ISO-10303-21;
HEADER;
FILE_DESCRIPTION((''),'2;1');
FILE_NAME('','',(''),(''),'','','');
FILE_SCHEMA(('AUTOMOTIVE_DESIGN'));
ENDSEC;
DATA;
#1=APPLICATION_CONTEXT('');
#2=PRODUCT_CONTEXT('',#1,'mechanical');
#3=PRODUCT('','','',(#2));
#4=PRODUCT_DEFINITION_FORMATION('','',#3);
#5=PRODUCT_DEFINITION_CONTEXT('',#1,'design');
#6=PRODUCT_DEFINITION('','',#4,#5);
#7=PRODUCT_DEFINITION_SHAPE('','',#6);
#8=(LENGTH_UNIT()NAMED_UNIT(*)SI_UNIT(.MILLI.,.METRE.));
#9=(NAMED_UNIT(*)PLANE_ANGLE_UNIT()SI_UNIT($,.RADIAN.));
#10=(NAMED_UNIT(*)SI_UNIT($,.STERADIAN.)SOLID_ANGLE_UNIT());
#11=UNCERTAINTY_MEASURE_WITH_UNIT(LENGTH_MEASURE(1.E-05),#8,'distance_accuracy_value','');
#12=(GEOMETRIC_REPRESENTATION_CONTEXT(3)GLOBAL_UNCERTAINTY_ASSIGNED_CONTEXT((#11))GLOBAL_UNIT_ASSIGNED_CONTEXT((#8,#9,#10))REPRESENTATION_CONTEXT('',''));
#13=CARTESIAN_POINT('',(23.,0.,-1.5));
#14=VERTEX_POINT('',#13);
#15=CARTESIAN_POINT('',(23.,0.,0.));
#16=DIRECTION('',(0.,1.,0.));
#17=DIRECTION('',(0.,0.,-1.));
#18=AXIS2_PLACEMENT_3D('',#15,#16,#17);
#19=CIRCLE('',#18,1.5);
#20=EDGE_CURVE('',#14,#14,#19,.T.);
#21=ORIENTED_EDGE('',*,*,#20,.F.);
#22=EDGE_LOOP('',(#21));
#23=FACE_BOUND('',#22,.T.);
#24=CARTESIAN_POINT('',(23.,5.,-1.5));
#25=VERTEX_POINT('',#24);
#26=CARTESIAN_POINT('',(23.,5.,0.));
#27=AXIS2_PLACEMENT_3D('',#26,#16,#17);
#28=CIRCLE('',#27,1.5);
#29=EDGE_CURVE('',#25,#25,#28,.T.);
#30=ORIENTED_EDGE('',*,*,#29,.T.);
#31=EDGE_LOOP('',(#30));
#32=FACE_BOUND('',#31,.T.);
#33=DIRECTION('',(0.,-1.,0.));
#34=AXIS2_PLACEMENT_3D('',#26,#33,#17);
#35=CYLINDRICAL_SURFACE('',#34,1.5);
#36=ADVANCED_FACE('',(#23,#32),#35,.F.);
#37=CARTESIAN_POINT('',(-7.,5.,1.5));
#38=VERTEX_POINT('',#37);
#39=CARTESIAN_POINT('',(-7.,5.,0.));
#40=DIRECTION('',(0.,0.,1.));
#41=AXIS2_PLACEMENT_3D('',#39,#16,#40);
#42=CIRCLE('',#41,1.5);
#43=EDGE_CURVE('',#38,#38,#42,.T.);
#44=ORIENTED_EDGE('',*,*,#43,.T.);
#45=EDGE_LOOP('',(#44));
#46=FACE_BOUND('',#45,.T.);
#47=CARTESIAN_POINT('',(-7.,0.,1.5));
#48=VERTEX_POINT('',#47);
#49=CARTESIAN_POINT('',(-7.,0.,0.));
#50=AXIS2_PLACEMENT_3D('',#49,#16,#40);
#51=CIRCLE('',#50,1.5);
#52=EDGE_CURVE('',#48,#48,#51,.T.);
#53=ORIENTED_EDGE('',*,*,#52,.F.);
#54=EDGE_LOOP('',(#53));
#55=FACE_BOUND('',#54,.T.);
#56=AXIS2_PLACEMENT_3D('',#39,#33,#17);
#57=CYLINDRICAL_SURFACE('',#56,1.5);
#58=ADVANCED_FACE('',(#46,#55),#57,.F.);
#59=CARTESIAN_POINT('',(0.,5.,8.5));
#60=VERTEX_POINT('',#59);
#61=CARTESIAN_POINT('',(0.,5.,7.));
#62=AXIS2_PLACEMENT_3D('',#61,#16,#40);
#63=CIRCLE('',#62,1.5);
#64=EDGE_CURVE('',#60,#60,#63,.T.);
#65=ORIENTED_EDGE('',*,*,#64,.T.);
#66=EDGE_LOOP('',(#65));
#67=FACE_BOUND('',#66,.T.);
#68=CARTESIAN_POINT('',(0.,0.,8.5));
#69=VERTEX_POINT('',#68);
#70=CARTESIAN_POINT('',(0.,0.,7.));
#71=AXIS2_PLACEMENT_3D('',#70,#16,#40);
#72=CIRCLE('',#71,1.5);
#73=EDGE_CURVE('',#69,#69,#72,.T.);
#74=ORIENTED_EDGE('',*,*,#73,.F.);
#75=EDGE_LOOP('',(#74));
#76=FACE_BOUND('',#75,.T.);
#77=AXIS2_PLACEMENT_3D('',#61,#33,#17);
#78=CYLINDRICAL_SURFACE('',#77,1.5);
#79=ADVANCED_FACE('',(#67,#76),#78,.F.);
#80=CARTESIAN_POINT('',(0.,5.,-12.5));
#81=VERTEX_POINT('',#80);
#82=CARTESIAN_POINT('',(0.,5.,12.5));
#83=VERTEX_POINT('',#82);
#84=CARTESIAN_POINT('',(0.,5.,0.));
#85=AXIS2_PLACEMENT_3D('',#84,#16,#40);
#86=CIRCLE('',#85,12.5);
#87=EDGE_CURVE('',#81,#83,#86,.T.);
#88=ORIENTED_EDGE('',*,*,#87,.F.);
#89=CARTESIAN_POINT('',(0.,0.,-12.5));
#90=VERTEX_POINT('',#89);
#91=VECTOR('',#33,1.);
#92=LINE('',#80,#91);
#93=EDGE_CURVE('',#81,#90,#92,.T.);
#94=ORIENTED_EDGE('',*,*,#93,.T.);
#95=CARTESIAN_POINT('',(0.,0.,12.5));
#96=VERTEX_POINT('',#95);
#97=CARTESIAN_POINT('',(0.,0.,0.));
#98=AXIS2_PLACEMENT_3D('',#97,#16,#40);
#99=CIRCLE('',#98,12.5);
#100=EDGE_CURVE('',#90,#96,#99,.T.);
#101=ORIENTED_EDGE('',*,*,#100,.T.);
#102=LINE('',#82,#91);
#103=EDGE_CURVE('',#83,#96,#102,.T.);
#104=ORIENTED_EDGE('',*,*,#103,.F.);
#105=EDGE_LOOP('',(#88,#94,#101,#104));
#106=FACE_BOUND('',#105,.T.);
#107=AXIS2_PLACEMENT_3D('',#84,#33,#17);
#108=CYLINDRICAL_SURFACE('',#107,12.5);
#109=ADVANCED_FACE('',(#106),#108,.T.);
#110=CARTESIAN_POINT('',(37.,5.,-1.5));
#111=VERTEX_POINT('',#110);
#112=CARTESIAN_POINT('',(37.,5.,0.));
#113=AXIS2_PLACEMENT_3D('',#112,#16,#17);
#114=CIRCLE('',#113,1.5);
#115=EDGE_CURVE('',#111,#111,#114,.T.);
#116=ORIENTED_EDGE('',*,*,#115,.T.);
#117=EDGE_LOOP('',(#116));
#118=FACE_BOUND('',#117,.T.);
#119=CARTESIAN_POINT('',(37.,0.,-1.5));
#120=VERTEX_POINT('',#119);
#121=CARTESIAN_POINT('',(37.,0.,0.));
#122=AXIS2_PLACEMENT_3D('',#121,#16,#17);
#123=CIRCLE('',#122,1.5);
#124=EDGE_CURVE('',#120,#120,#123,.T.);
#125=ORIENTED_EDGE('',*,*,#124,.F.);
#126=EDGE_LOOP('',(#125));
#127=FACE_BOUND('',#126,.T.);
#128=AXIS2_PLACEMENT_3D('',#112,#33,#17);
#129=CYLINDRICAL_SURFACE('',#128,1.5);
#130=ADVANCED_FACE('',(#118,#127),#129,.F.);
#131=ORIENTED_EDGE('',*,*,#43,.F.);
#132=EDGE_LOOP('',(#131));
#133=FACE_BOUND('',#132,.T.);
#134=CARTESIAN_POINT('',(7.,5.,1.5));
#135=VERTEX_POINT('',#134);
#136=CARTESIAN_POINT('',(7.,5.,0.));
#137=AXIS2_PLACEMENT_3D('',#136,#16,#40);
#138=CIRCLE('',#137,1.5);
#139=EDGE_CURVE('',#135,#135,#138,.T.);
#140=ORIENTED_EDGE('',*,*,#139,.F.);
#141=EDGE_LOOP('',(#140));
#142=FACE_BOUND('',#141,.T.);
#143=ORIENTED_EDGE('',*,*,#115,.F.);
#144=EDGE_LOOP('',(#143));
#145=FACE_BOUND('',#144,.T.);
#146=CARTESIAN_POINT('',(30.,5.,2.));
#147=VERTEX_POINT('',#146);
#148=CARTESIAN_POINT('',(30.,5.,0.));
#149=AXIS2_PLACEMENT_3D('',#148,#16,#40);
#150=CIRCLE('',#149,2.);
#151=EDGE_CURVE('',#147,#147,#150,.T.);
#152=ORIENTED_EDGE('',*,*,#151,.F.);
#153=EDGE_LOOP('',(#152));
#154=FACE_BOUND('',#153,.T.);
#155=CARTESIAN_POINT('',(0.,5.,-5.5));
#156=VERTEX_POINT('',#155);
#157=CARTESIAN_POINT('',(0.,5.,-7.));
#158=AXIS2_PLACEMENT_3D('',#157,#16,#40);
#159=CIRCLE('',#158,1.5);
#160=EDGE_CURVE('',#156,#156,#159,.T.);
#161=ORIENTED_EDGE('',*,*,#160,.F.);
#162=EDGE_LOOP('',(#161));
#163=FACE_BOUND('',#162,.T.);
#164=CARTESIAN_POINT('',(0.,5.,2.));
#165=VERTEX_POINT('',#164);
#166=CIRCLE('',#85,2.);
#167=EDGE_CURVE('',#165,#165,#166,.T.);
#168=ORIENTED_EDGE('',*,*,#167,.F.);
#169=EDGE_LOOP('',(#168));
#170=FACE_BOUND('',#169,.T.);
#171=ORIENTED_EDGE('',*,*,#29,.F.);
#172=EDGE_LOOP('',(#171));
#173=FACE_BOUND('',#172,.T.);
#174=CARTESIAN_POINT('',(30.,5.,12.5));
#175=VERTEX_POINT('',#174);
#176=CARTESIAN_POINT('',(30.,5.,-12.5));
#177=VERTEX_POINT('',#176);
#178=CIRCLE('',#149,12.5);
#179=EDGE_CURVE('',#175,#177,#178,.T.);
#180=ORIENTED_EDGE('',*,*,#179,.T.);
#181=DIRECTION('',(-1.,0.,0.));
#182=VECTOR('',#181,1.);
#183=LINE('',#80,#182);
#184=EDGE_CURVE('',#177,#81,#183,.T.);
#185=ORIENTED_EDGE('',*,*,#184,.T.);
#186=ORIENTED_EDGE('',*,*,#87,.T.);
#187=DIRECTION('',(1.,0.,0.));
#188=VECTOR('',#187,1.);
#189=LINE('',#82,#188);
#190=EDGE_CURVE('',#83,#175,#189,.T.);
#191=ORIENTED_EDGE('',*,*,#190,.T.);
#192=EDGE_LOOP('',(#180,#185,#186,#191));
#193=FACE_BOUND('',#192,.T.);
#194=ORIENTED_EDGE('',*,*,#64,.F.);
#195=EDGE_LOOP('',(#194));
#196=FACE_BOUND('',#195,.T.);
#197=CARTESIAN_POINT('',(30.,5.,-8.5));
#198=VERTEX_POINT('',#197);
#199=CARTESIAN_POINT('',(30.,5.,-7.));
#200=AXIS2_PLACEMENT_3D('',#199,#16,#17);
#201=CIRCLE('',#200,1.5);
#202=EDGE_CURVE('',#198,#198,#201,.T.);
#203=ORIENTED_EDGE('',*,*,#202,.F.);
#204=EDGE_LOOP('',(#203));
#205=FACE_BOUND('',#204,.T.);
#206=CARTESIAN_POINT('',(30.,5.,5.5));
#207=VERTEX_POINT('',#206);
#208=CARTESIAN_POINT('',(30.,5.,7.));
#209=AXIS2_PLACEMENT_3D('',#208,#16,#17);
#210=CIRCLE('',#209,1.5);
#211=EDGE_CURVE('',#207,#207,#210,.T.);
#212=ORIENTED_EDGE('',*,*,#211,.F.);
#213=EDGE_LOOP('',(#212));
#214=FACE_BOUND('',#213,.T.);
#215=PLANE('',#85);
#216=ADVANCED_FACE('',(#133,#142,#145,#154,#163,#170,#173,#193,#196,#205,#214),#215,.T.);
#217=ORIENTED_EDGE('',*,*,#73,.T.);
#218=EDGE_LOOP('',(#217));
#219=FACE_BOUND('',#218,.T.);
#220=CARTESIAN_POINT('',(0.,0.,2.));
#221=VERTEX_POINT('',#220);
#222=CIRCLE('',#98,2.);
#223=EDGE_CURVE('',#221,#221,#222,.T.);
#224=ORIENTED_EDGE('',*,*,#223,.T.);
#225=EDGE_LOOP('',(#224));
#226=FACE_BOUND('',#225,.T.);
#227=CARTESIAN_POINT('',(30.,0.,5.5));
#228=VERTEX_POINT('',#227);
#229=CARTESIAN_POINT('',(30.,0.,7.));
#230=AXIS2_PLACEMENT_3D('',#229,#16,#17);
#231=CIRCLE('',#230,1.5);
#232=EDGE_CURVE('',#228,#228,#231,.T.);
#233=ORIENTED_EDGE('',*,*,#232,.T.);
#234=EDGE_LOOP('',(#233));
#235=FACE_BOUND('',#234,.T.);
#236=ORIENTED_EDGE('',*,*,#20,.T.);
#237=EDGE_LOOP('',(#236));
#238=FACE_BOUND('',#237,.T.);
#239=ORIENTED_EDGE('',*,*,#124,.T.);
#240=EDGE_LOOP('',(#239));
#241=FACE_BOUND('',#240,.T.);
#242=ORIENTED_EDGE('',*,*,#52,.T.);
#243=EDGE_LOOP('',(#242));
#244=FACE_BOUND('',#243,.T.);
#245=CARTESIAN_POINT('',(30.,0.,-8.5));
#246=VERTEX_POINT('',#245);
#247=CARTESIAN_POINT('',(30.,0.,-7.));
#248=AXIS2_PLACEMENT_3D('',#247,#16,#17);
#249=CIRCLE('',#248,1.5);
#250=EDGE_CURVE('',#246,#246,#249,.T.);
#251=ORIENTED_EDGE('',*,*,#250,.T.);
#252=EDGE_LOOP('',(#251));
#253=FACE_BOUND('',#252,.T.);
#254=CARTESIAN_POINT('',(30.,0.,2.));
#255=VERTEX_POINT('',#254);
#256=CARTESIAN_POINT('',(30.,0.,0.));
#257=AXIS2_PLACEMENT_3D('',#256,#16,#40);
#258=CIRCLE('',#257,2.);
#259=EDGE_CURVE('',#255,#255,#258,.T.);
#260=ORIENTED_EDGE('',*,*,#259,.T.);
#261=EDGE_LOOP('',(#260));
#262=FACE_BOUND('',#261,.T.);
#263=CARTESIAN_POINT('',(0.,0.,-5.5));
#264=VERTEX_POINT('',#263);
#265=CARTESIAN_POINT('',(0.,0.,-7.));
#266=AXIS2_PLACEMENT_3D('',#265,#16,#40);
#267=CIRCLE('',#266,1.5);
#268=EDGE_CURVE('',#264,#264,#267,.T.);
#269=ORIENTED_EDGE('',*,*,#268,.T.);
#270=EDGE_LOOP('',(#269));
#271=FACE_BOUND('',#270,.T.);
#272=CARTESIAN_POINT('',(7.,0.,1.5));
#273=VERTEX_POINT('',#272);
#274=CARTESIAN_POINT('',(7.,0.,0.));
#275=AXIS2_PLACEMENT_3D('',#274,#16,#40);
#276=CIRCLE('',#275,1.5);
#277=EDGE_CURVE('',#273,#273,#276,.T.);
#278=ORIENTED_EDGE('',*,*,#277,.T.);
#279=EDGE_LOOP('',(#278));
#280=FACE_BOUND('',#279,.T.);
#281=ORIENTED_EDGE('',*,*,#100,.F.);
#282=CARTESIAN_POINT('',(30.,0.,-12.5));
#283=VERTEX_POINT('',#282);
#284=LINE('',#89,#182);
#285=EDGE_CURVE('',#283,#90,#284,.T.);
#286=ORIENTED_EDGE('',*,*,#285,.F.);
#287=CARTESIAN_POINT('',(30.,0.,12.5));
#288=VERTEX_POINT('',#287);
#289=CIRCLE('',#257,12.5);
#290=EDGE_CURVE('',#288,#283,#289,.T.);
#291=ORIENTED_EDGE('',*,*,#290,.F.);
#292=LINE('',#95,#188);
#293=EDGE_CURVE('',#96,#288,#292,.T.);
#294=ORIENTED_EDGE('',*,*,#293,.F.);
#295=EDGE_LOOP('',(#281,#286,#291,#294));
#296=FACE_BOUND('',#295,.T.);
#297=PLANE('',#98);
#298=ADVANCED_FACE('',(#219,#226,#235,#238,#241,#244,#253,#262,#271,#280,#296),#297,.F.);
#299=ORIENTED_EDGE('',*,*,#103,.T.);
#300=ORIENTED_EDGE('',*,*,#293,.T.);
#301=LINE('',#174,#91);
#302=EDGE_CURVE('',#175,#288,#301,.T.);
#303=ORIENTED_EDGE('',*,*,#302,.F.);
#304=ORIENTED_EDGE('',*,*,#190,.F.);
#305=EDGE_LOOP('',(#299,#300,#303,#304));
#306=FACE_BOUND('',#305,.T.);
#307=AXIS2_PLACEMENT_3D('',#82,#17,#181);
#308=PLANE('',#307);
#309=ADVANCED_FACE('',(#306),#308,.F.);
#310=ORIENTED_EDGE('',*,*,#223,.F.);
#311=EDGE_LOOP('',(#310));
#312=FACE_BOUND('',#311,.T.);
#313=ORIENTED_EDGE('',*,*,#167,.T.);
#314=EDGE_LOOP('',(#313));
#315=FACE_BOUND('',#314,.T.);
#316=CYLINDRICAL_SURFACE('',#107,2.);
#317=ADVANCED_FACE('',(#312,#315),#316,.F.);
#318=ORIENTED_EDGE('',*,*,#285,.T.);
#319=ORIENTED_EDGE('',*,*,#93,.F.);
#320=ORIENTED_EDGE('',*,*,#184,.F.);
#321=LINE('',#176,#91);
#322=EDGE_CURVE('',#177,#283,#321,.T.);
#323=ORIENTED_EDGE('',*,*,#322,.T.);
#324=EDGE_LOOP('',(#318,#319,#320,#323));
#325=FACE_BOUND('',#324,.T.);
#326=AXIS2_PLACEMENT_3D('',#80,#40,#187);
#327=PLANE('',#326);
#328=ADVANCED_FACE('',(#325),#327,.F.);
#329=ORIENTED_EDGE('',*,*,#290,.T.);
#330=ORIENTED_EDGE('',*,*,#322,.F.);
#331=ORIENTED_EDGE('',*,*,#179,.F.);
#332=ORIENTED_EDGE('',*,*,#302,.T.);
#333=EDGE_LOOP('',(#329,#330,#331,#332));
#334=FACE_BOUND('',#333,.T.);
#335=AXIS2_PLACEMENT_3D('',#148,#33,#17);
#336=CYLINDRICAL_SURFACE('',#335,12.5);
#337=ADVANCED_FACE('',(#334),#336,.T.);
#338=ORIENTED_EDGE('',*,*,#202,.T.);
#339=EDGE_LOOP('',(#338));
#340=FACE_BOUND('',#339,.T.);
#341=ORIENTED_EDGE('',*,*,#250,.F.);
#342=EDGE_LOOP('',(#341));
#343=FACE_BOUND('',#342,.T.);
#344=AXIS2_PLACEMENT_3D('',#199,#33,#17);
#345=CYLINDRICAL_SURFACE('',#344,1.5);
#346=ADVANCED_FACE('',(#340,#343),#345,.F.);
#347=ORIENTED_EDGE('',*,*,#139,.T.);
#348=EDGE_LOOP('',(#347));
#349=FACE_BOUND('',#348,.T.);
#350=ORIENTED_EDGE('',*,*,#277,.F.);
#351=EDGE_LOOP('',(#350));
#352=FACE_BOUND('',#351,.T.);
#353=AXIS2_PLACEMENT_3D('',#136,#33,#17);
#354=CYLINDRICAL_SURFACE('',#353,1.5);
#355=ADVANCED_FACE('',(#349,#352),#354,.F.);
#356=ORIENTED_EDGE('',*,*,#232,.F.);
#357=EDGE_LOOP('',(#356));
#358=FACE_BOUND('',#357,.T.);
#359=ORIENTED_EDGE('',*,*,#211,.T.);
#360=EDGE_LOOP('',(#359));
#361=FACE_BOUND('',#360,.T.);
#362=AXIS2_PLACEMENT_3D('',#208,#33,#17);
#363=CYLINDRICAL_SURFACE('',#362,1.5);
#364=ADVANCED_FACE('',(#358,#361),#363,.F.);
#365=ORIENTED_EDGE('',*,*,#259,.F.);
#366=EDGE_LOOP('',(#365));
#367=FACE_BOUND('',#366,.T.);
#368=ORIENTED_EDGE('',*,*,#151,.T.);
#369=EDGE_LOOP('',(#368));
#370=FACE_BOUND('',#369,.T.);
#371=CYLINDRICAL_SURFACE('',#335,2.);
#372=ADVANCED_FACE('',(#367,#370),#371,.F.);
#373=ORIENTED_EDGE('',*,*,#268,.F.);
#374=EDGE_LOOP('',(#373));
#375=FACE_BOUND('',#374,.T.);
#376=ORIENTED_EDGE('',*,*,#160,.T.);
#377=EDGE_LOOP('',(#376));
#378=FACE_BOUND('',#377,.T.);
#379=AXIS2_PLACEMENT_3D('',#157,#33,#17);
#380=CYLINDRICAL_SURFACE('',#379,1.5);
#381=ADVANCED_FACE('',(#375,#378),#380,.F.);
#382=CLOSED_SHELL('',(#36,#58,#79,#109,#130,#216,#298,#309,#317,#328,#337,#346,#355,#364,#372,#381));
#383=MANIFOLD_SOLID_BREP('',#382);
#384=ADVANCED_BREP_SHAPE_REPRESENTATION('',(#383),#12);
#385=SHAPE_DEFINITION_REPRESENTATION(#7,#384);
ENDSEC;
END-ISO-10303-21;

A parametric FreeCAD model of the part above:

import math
import FreeCAD as App
import Part
import Sketcher

doc = App.newDocument("Part")
params = doc.addObject("Spreadsheet::Sheet", "Params")
for row, (alias, value) in enumerate([
    ("sketch1_diameter", "3 mm"),
    ("sketch1_diameter2", "4 mm"),
    ("sketch1_radius", "12.5 mm"),
    ("sketch1_width", "30 mm"),
    ("pad1_length", "5 mm"),
], start=1):
    params.set(f"A{row}", alias)
    params.set(f"B{row}", "=" + value)
    params.setAlias(f"B{row}", alias)

body = doc.addObject("PartDesign::Body", "Body")

# Sketch on XZ plane
sketch1 = body.newObject("Sketcher::SketchObject", "Sketch")
sketch1.AttachmentSupport = (doc.getObject("XZ_Plane"), [""])
sketch1.MapMode = "FlatFace"
sketch1.addGeometry(Part.LineSegment(App.Vector(30, -12.5, 0), App.Vector(0, -12.5, 0)), False)
sketch1.addGeometry(Part.ArcOfCircle(Part.Circle(App.Vector(0, 0, 0), App.Vector(0, 0, 1), 12.5), math.radians(90), math.radians(270)), False)
sketch1.addGeometry(Part.LineSegment(App.Vector(0, 12.5, 0), App.Vector(30, 12.5, 0)), False)
sketch1.addGeometry(Part.ArcOfCircle(Part.Circle(App.Vector(30, 0, 0), App.Vector(0, 0, 1), 12.5), math.radians(-90), math.radians(90)), False)
sketch1.addGeometry(Part.Circle(App.Vector(30, 7, 0), App.Vector(0, 0, 1), 1.5), False)
sketch1.addGeometry(Part.Circle(App.Vector(0, 7, 0), App.Vector(0, 0, 1), 1.5), False)
sketch1.addGeometry(Part.Circle(App.Vector(37, 0, 0), App.Vector(0, 0, 1), 1.5), False)
sketch1.addGeometry(Part.Circle(App.Vector(30, 0, 0), App.Vector(0, 0, 1), 2), False)
sketch1.addGeometry(Part.Circle(App.Vector(23, 0, 0), App.Vector(0, 0, 1), 1.5), False)
sketch1.addGeometry(Part.Circle(App.Vector(30, -7, 0), App.Vector(0, 0, 1), 1.5), False)
sketch1.addGeometry(Part.Circle(App.Vector(7, 0, 0), App.Vector(0, 0, 1), 1.5), False)
sketch1.addGeometry(Part.Circle(App.Vector(0, 0, 0), App.Vector(0, 0, 1), 2), False)
sketch1.addGeometry(Part.Circle(App.Vector(-7, 0, 0), App.Vector(0, 0, 1), 1.5), False)
sketch1.addGeometry(Part.Circle(App.Vector(0, -7, 0), App.Vector(0, 0, 1), 1.5), False)
sketch1.addConstraint(Sketcher.Constraint("Tangent", 0, 2, 1, 2))
sketch1.addConstraint(Sketcher.Constraint("Tangent", 1, 1, 2, 1))
sketch1.addConstraint(Sketcher.Constraint("Tangent", 2, 2, 3, 2))
sketch1.addConstraint(Sketcher.Constraint("Tangent", 3, 1, 0, 1))
sketch1.addConstraint(Sketcher.Constraint("Horizontal", 0))
sketch1.addConstraint(Sketcher.Constraint("Horizontal", 2))
sketch1.addConstraint(Sketcher.Constraint("Coincident", 1, 3, -1, 1))
sketch1.addConstraint(Sketcher.Constraint("Coincident", 11, 3, -1, 1))
sketch1.addConstraint(Sketcher.Constraint("Coincident", 7, 3, 3, 3))
sketch1.addConstraint(Sketcher.Constraint("Equal", 4, 5))
sketch1.addConstraint(Sketcher.Constraint("Equal", 5, 6))
sketch1.addConstraint(Sketcher.Constraint("Equal", 6, 8))
sketch1.addConstraint(Sketcher.Constraint("Equal", 8, 9))
sketch1.addConstraint(Sketcher.Constraint("Equal", 9, 10))
sketch1.addConstraint(Sketcher.Constraint("Equal", 7, 11))
sketch1.addConstraint(Sketcher.Constraint("Equal", 10, 12))
sketch1.addConstraint(Sketcher.Constraint("Equal", 12, 13))
sketch1.addConstraint(Sketcher.Constraint("Symmetric", 10, 3, 12, 3, -1, 1))
sketch1.addConstraint(Sketcher.Constraint("Symmetric", 5, 3, 13, 3, -1, 1))
sketch1.addConstraint(Sketcher.Constraint("Symmetric", 4, 3, 9, 3, -1))
sketch1.addConstraint(Sketcher.Constraint("PointOnObject", 5, 3, -2))
sketch1.addConstraint(Sketcher.Constraint("PointOnObject", 6, 3, -1))
sketch1.addConstraint(Sketcher.Constraint("PointOnObject", 8, 3, -1))
sketch1.addConstraint(Sketcher.Constraint("PointOnObject", 10, 3, -1))
sketch1.addConstraint(Sketcher.Constraint("Horizontal", 4, 3, 5, 3))
sketch1.addConstraint(Sketcher.Constraint("Vertical", 3, 3, 4, 3))
sketch1.addConstraint(Sketcher.Constraint("Diameter", 4, 3.0))
sketch1.addConstraint(Sketcher.Constraint("Diameter", 7, 4.0))
sketch1.addConstraint(Sketcher.Constraint("Radius", 1, 12.5))
sketch1.addConstraint(Sketcher.Constraint("DistanceX", 0, 2, 0, 1, 30.0))
sketch1.addConstraint(Sketcher.Constraint("DistanceY", -1, 1, 4, 3, 7.0))
sketch1.addConstraint(Sketcher.Constraint("DistanceX", -1, 1, 6, 3, 37.0))
sketch1.addConstraint(Sketcher.Constraint("DistanceX", -1, 1, 8, 3, 23.0))
sketch1.addConstraint(Sketcher.Constraint("DistanceX", -1, 1, 10, 3, 7.0))
sketch1.setExpression("Constraints[26]", "Params.sketch1_diameter")
sketch1.setExpression("Constraints[27]", "Params.sketch1_diameter2")
sketch1.setExpression("Constraints[28]", "Params.sketch1_radius")
sketch1.setExpression("Constraints[29]", "Params.sketch1_width")
pad1 = body.newObject("PartDesign::Pad", "Pad")
pad1.Profile = sketch1
pad1.setExpression("Length", "Params.pad1_length")
pad1.Reversed = True

doc.recompute()
